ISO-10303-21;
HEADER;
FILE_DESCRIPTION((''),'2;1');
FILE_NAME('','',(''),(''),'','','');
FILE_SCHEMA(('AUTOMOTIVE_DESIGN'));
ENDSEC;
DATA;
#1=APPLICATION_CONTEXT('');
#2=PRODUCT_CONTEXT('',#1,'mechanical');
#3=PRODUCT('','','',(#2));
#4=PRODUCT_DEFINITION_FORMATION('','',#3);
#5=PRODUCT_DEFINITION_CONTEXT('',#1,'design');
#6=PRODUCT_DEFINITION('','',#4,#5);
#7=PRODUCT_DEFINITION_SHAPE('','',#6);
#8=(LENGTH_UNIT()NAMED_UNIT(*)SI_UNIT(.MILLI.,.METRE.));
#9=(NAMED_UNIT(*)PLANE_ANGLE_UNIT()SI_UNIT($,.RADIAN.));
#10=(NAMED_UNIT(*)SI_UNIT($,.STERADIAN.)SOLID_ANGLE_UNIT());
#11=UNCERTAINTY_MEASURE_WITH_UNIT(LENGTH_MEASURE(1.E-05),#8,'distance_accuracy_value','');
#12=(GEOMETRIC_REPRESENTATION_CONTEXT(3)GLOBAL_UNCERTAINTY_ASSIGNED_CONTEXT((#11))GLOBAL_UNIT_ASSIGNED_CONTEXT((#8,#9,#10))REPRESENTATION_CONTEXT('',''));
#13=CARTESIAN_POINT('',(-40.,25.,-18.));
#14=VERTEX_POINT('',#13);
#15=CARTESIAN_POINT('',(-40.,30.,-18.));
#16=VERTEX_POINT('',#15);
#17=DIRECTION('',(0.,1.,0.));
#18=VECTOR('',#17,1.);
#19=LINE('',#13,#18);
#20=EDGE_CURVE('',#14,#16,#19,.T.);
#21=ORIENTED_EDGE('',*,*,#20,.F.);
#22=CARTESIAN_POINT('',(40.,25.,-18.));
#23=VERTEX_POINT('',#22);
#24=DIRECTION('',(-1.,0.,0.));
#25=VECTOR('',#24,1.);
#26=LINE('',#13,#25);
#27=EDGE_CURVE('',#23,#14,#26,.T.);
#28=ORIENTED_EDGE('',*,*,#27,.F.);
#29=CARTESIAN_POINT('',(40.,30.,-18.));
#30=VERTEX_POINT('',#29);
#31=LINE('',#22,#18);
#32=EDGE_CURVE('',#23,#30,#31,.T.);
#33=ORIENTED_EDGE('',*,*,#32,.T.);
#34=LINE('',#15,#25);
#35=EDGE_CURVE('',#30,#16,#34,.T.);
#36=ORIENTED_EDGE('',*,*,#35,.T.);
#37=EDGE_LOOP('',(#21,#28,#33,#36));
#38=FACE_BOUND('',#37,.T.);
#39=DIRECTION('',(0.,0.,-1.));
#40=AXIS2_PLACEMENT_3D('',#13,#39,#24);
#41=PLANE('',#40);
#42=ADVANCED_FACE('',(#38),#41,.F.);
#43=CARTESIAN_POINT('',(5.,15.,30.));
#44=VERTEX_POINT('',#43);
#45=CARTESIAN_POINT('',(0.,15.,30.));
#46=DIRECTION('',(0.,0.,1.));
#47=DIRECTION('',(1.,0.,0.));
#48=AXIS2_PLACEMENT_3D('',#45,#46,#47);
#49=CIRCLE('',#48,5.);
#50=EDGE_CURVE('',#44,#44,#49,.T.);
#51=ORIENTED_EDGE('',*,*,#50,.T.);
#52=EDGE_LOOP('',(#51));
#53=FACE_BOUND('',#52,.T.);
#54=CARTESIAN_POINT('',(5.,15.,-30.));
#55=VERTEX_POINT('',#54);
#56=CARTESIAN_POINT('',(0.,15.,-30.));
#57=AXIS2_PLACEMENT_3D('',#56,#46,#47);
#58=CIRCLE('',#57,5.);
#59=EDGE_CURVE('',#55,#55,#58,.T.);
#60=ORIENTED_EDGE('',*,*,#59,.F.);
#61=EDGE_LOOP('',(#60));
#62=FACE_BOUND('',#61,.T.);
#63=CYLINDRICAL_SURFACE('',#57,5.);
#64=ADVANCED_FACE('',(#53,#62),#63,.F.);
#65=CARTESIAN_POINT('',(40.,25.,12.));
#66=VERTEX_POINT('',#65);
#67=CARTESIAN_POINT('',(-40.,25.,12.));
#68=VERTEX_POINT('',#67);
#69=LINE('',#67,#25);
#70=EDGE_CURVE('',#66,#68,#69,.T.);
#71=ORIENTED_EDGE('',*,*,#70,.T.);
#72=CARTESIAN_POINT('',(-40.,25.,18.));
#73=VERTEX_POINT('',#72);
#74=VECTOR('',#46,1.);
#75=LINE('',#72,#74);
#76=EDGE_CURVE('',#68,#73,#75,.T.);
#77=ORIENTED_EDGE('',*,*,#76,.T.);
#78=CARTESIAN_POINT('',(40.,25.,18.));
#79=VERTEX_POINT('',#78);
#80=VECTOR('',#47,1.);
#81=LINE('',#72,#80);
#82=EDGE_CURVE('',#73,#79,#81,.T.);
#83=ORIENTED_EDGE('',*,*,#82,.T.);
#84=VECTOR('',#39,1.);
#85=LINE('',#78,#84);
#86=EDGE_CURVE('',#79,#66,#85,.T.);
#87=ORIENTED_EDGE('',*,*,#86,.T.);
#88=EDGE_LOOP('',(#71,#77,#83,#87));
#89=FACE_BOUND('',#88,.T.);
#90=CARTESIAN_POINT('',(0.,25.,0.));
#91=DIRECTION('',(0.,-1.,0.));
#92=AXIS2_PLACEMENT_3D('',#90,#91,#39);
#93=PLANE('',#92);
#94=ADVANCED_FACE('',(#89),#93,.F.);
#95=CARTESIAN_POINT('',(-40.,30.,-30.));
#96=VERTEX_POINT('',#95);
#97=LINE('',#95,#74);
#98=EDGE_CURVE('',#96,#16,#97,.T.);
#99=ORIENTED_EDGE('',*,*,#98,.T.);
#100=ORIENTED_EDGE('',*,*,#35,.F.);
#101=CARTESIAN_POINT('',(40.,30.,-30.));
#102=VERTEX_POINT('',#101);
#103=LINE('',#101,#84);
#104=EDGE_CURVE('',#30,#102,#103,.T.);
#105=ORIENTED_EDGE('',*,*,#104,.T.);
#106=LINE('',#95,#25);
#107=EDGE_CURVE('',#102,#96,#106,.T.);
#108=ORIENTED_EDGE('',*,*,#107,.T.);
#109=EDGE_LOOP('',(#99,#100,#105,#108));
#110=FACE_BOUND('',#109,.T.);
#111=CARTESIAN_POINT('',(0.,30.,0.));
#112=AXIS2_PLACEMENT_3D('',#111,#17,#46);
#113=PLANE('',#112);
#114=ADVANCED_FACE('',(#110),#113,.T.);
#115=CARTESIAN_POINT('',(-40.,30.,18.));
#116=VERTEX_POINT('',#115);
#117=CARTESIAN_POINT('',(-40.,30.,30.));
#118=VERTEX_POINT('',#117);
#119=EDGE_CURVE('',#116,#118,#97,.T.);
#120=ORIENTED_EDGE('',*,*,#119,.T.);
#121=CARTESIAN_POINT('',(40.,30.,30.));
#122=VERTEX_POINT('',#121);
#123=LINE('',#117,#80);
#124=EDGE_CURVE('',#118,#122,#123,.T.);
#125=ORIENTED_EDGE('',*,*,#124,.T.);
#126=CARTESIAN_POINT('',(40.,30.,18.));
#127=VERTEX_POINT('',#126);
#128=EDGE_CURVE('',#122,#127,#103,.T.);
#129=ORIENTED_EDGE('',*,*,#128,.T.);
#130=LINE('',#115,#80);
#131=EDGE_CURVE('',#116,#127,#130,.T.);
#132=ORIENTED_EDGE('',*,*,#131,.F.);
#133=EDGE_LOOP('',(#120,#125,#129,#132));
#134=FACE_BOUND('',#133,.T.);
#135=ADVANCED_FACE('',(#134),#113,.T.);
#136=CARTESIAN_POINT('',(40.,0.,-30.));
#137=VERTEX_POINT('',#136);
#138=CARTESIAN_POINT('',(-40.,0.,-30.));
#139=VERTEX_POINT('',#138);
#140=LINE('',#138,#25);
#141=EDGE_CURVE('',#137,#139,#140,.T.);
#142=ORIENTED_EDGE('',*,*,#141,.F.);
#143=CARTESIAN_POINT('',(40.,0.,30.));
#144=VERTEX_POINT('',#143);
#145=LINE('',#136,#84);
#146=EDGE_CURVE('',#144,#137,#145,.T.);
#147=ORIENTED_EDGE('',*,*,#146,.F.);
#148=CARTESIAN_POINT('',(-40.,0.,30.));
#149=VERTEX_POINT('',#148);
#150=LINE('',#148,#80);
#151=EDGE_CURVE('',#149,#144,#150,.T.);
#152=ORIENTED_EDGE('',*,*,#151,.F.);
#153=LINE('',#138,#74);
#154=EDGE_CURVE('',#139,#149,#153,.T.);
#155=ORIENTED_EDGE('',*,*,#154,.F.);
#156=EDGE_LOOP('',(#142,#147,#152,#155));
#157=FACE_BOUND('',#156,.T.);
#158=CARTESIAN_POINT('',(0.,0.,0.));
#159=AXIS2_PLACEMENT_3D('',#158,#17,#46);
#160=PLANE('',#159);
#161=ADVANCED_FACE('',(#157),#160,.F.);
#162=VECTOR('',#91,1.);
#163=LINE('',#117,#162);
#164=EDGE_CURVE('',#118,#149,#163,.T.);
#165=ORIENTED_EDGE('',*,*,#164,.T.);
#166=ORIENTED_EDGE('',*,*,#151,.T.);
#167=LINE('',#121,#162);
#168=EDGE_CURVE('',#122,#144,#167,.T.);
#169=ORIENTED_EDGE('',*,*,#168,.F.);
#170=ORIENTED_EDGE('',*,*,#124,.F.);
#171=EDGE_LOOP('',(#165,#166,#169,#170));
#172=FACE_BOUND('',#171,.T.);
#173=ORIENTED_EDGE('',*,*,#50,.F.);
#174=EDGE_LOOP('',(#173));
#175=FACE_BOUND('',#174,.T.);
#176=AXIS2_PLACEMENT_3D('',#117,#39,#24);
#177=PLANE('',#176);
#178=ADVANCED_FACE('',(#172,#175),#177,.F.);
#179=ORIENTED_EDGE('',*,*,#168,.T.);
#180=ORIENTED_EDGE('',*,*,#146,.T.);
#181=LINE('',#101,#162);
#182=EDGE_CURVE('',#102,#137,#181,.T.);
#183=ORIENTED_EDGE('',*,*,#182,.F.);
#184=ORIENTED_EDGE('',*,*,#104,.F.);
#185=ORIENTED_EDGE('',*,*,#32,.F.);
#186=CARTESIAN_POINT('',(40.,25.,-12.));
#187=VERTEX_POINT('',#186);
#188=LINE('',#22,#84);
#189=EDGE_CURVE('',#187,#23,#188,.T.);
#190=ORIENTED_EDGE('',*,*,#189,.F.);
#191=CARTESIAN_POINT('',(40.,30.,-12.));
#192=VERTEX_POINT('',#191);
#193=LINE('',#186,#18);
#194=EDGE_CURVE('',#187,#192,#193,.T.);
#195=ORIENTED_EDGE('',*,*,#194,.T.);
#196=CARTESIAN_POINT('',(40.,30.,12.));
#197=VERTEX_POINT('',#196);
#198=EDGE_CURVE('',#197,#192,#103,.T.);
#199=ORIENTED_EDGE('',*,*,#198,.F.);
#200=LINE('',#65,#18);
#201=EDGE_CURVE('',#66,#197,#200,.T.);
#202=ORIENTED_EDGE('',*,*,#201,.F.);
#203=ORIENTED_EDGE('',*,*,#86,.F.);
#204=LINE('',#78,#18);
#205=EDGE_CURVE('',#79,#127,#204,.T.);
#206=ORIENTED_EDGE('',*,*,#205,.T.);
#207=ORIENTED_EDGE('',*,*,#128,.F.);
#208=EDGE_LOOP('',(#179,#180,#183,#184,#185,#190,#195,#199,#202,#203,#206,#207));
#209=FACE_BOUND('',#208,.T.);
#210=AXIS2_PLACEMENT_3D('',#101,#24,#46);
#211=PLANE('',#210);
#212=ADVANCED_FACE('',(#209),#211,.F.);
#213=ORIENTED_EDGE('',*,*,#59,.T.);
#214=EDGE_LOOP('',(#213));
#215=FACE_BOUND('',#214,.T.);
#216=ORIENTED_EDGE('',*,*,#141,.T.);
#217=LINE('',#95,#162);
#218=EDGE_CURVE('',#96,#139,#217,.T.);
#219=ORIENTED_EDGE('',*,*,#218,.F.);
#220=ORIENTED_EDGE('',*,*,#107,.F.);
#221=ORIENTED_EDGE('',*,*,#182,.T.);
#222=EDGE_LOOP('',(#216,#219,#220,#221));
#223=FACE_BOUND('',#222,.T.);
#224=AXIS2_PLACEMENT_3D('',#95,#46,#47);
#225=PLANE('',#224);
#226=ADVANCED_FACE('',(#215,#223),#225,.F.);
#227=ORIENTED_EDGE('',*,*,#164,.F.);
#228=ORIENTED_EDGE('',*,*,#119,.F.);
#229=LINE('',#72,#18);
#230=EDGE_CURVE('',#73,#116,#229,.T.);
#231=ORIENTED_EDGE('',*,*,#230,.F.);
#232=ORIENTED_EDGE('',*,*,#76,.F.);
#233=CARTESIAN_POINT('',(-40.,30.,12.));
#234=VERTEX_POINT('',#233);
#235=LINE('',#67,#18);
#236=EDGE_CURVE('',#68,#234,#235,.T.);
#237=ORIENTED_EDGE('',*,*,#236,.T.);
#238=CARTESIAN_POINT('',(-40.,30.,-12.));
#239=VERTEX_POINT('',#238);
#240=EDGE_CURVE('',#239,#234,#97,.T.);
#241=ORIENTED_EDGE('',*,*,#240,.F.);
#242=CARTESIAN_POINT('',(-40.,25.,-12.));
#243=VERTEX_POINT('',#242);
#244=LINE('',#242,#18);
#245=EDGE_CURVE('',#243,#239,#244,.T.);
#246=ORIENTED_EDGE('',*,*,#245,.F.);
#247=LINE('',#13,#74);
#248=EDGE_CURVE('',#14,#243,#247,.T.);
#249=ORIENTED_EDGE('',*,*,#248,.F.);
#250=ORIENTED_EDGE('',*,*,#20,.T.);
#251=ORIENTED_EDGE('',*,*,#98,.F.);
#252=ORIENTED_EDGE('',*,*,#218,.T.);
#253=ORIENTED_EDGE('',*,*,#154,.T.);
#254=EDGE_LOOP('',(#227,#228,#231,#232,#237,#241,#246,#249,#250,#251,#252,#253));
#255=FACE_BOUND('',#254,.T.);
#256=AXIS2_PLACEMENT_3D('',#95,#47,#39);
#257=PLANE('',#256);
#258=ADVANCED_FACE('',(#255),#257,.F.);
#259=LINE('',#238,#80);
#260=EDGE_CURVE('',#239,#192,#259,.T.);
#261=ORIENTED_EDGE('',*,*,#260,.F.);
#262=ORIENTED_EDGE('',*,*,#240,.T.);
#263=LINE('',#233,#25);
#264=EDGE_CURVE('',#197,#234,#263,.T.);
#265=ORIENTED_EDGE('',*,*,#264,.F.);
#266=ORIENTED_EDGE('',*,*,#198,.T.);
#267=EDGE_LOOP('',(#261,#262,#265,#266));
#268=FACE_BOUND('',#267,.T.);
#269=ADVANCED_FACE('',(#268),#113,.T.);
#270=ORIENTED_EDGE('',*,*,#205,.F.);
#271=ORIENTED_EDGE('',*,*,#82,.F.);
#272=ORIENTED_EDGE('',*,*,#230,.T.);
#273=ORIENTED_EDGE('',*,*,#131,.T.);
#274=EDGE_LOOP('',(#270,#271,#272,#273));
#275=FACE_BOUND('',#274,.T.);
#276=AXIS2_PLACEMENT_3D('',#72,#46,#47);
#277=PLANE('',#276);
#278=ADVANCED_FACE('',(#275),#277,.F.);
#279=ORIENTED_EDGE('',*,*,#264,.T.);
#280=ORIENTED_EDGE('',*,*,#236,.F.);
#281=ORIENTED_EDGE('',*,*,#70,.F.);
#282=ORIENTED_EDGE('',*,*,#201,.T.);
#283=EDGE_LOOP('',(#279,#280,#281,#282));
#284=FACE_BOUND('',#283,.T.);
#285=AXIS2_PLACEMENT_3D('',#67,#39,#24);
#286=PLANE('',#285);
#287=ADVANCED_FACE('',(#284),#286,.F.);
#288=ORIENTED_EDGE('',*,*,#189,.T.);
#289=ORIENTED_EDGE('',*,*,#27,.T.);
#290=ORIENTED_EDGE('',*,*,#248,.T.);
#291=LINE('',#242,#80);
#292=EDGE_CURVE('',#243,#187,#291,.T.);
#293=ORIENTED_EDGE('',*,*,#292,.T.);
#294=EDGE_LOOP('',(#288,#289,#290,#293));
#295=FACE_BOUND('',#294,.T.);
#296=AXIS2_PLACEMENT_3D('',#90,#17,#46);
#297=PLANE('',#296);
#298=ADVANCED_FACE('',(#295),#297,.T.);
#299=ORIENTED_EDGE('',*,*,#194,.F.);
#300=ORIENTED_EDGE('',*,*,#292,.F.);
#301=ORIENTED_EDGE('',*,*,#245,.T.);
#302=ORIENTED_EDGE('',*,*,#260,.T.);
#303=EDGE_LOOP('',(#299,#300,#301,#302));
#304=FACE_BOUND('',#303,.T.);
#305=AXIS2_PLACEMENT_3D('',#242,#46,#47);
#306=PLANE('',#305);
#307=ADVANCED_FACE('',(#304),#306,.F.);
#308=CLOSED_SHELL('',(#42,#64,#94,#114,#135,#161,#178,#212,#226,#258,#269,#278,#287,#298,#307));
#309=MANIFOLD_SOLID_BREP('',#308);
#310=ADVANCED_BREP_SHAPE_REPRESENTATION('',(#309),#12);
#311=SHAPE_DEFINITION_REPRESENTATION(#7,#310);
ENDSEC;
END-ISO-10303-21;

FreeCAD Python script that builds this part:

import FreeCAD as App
import Part
import Sketcher

V = App.Vector


def add_polygon(sketch, points):
    """Adds a closed chain of lines whose ends are joined by coincident constraints."""
    first, n = sketch.GeometryCount, len(points)
    for a, b in zip(points, points[1:] + points[:1]):
        sketch.addGeometry(Part.LineSegment(App.Vector(*a, 0), App.Vector(*b, 0)), False)
    for i in range(n):
        sketch.addConstraint(Sketcher.Constraint("Coincident", first + i, 2, first + (i + 1) % n, 1))

doc = App.newDocument("Part")
body = doc.addObject("PartDesign::Body", "Body")

# Sketch on XZ plane
sketch1 = body.newObject("Sketcher::SketchObject", "Sketch")
sketch1.AttachmentSupport = (doc.getObject("XZ_Plane"), [""])
sketch1.MapMode = "FlatFace"
add_polygon(sketch1, [(-40, -30), (-40, 30), (40, 30), (40, -30)])  # lines 0-3
sketch1.addConstraint([
    Sketcher.Constraint("Vertical", 0),
    Sketcher.Constraint("Horizontal", 1),
    Sketcher.Constraint("Vertical", 2),
    Sketcher.Constraint("Horizontal", 3),
    Sketcher.Constraint("Symmetric", 0, 2, 2, 2, -1, 1),
    Sketcher.Constraint("DistanceX", 1, 1, 1, 2, 80.0),
    Sketcher.Constraint("DistanceY", 0, 1, 0, 2, 60.0),
])
pad1 = body.newObject("PartDesign::Pad", "Pad")
pad1.Profile = sketch1
pad1.Length = 30
pad1.Reversed = True

# Sketch on XY plane
sketch2 = body.newObject("Sketcher::SketchObject", "Sketch001")
sketch2.AttachmentSupport = (doc.getObject("XY_Plane"), [""])
sketch2.MapMode = "FlatFace"
sketch2.AttachmentOffset = App.Placement(V(0, 0, 30), App.Rotation())
sketch2.addGeometry(Part.Circle(V(0, 15, 0), V(0, 0, 1), 5), False)
sketch2.addConstraint([
    Sketcher.Constraint("PointOnObject", 0, 3, -2),
    Sketcher.Constraint("Diameter", 0, 10.0),
    Sketcher.Constraint("DistanceY", -1, 1, 0, 3, 15.0),
])
pocket1 = body.newObject("PartDesign::Pocket", "Pocket")
pocket1.Profile = sketch2
pocket1.Type = "ThroughAll"

# Sketch on XZ plane
sketch3 = body.newObject("Sketcher::SketchObject", "Sketch002")
sketch3.AttachmentSupport = (doc.getObject("XZ_Plane"), [""])
sketch3.MapMode = "FlatFace"
sketch3.AttachmentOffset = App.Placement(V(0, 0, -30), App.Rotation())
add_polygon(sketch3, [(-40, -18), (-40, -12), (40, -12), (40, -18)])  # lines 0-3
add_polygon(sketch3, [(-40, 12), (-40, 18), (40, 18), (40, 12)])  # lines 4-7
sketch3.addConstraint([
    Sketcher.Constraint("Vertical", 0),
    Sketcher.Constraint("Horizontal", 1),
    Sketcher.Constraint("Vertical", 2),
    Sketcher.Constraint("Horizontal", 3),
    Sketcher.Constraint("Vertical", 4),
    Sketcher.Constraint("Horizontal", 5),
    Sketcher.Constraint("Vertical", 6),
    Sketcher.Constraint("Horizontal", 7),
    Sketcher.Constraint("Symmetric", 2, 2, 4, 2, -1, 1),
    Sketcher.Constraint("Symmetric", 0, 2, 6, 2, -1, 1),
    Sketcher.Constraint("Vertical", 3, 2, 4, 2),
    Sketcher.Constraint("DistanceX", 1, 1, 1, 2, 80.0),
    Sketcher.Constraint("DistanceY", 0, 1, 0, 2, 6.0),
    Sketcher.Constraint("DistanceY", 0, 2, -1, 1, 12.0),
])
pocket2 = body.newObject("PartDesign::Pocket", "Pocket001")
pocket2.Profile = sketch3
pocket2.Length = 5
pocket2.Reversed = True

doc.recompute()
